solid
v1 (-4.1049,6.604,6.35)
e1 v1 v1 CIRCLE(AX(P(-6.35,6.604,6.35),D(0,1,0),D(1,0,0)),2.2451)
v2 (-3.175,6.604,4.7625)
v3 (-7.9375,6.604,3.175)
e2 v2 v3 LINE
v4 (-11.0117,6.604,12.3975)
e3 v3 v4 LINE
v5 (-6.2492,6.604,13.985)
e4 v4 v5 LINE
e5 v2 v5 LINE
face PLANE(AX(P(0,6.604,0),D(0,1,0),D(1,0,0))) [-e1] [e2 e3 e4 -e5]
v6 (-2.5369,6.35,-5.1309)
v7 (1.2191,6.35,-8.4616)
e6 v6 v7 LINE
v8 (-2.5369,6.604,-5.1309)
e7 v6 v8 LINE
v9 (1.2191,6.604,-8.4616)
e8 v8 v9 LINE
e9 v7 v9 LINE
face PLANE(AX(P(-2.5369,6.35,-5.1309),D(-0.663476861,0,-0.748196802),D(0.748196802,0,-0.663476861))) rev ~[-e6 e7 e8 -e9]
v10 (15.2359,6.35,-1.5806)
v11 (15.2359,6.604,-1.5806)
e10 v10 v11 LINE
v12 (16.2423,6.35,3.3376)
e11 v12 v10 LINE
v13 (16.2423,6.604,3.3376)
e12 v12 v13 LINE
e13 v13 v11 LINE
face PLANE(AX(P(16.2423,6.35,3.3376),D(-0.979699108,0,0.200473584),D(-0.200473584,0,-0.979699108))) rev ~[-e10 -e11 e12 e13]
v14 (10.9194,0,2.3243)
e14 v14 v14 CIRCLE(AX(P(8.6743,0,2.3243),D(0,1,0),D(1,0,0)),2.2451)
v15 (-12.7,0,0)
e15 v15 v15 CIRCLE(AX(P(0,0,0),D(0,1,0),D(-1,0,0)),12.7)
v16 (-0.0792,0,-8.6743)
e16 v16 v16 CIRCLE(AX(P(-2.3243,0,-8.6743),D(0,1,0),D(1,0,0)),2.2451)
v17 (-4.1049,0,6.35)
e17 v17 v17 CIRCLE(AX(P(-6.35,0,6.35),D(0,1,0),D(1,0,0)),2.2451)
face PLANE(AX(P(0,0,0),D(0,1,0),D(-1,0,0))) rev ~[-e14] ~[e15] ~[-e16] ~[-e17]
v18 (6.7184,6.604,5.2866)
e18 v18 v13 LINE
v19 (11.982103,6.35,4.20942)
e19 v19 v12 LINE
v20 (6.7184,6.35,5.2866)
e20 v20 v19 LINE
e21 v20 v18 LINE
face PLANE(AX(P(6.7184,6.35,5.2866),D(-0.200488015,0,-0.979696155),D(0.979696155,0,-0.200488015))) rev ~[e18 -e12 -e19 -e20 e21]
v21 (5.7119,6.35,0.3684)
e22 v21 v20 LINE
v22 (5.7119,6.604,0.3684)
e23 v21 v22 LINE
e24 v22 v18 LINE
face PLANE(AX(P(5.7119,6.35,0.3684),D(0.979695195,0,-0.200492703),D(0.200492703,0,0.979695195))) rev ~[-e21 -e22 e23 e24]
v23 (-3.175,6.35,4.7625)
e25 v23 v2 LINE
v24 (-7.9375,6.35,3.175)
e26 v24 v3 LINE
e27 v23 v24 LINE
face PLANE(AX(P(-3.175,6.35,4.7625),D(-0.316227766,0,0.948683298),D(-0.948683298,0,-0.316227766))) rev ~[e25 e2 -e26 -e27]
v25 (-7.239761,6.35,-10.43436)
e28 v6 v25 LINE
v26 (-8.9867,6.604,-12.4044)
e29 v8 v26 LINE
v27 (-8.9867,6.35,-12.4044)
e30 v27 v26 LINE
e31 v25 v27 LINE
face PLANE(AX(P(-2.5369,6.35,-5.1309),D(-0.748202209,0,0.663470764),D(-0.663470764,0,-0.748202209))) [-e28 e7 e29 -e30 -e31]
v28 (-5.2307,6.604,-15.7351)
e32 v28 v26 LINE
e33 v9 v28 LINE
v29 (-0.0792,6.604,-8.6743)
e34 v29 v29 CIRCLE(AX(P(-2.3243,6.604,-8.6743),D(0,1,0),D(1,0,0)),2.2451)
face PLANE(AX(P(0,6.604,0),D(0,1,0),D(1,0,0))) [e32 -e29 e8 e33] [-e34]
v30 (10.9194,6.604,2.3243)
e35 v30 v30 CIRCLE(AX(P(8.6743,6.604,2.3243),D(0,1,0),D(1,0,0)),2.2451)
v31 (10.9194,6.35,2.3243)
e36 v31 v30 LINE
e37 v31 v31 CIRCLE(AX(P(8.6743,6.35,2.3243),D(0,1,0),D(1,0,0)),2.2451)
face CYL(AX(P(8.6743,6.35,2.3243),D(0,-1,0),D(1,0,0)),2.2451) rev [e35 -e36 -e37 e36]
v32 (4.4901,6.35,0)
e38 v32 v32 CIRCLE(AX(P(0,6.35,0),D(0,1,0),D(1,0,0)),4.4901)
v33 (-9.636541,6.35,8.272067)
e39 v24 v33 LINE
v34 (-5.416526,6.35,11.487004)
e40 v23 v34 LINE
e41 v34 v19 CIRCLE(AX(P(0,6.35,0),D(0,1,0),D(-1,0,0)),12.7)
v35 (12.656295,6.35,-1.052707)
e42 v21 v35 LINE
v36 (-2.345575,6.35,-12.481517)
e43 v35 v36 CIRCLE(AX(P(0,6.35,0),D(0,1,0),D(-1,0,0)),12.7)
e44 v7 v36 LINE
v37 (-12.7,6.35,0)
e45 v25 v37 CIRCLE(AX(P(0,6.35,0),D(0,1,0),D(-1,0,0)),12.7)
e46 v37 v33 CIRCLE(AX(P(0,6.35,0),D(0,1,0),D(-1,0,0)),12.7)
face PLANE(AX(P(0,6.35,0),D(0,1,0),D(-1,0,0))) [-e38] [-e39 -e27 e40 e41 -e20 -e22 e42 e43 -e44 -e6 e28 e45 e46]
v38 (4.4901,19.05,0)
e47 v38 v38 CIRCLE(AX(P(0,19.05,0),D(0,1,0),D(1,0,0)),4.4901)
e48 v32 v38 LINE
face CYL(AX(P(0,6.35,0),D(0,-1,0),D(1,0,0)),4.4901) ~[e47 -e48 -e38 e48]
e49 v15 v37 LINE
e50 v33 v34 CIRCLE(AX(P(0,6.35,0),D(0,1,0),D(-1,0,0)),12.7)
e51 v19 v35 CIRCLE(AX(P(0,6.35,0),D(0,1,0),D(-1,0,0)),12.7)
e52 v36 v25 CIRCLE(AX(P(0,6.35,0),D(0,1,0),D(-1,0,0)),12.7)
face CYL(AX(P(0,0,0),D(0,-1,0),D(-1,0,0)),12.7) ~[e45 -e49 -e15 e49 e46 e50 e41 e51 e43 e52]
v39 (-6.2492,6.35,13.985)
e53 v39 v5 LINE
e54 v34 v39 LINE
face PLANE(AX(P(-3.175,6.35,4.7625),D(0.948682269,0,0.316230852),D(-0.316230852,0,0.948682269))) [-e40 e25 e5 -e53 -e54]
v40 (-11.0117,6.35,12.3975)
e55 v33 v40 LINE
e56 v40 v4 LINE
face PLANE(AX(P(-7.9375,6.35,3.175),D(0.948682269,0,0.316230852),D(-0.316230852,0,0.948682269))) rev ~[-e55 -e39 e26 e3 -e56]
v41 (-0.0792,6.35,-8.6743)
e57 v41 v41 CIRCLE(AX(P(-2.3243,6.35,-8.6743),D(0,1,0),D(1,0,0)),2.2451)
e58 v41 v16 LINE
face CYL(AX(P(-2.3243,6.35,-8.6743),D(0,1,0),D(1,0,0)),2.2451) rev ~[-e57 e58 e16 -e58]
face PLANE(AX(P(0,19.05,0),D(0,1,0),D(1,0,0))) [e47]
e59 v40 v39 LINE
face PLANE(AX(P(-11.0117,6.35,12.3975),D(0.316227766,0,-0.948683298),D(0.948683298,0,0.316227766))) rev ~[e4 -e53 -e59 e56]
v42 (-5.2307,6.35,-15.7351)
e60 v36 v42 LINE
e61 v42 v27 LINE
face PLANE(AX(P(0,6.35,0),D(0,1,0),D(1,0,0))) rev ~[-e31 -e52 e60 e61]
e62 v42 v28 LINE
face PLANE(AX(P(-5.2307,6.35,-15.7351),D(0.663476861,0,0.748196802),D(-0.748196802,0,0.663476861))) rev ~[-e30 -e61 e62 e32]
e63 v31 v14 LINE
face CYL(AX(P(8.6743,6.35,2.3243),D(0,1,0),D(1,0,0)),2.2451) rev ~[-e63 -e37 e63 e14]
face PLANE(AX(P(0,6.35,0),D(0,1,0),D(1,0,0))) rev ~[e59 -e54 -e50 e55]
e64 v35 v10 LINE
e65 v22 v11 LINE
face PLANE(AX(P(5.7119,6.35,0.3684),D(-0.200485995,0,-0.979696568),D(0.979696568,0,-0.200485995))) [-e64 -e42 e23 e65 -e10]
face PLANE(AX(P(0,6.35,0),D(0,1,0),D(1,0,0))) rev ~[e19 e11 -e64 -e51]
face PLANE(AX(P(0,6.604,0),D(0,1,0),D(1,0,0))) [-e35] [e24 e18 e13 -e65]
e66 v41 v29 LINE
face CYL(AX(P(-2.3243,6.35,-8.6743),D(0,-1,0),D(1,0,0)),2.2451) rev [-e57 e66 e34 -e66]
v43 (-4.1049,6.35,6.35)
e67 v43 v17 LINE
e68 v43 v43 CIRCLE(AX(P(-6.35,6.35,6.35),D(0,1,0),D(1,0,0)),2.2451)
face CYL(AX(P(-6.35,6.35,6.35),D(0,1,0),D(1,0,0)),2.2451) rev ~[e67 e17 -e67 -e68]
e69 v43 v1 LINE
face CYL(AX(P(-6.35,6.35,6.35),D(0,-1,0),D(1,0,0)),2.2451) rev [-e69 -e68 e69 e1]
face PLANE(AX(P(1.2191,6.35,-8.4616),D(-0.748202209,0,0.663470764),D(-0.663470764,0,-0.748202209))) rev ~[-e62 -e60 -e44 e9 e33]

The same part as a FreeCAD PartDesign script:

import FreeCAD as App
import Part
import Sketcher
Q = App.Units.Quantity

doc = App.newDocument("Part")
body = doc.addObject("PartDesign::Body", "Body")

# Sketch on XZ plane
sketch1 = body.newObject("Sketcher::SketchObject", "Sketch")
sketch1.AttachmentSupport = (doc.getObject("XZ_Plane"), [""])
sketch1.MapMode = "FlatFace"
sketch1.addGeometry(Part.Circle(App.Vector(0, 0, 0), App.Vector(0, 0, 1), 13), False)
sketch1.addConstraint(Sketcher.Constraint("Coincident", 0, 3, -1, 1))
sketch1.addConstraint(Sketcher.Constraint("Diameter", 0, Q("1 in")))
pad1 = body.newObject("PartDesign::Pad", "Pad")
pad1.Profile = sketch1
pad1.Length = Q("0.25 in")
pad1.Reversed = True

# Sketch on XZ plane
sketch2 = body.newObject("Sketcher::SketchObject", "Sketch001")
sketch2.AttachmentSupport = (doc.getObject("XZ_Plane"), [""])
sketch2.MapMode = "FlatFace"
sketch2.AttachmentOffset = App.Placement(App.Vector(0, 0, -0.25 * 25.4), App.Rotation())
sketch2.addGeometry(Part.LineSegment(App.Vector(-6.2, 14, 0), App.Vector(-3.2, 4.8, 0)), False)
sketch2.addGeometry(Part.LineSegment(App.Vector(-3.2, 4.8, 0), App.Vector(-7.9, 3.2, 0)), False)
sketch2.addGeometry(Part.LineSegment(App.Vector(-7.9, 3.2, 0), App.Vector(-11, 12.4, 0)), False)
sketch2.addGeometry(Part.LineSegment(App.Vector(-11, 12.4, 0), App.Vector(-6.2, 14, 0)), False)
sketch2.addGeometry(Part.Circle(App.Vector(-6.3, 6.3, 0), App.Vector(0, 0, 1), 2.2), False)
sketch2.addGeometry(Part.LineSegment(App.Vector(5.7, 0.4, 0), App.Vector(6.7, 5.3, 0)), False)
sketch2.addGeometry(Part.LineSegment(App.Vector(6.7, 5.3, 0), App.Vector(16.2, 3.3, 0)), False)
sketch2.addGeometry(Part.LineSegment(App.Vector(16.2, 3.3, 0), App.Vector(15.2, -1.6, 0)), False)
sketch2.addGeometry(Part.LineSegment(App.Vector(15.2, -1.6, 0), App.Vector(5.7, 0.4, 0)), False)
sketch2.addGeometry(Part.Circle(App.Vector(8.7, 2.3, 0), App.Vector(0, 0, 1), 2.2), False)
sketch2.addGeometry(Part.LineSegment(App.Vector(-2.5, -5.1, 0), App.Vector(1.2, -8.5, 0)), False)
sketch2.addGeometry(Part.LineSegment(App.Vector(1.2, -8.5, 0), App.Vector(-5.2, -15.7, 0)), False)
sketch2.addGeometry(Part.LineSegment(App.Vector(-5.2, -15.7, 0), App.Vector(-9, -12.4, 0)), False)
sketch2.addGeometry(Part.LineSegment(App.Vector(-9, -12.4, 0), App.Vector(-2.5, -5.1, 0)), False)
sketch2.addGeometry(Part.Circle(App.Vector(-2.3, -8.7, 0), App.Vector(0, 0, 1), 2.2), False)
sketch2.addConstraint(Sketcher.Constraint("Coincident", 0, 2, 1, 1))
sketch2.addConstraint(Sketcher.Constraint("Coincident", 1, 2, 2, 1))
sketch2.addConstraint(Sketcher.Constraint("Coincident", 2, 2, 3, 1))
sketch2.addConstraint(Sketcher.Constraint("Coincident", 3, 2, 0, 1))
sketch2.addConstraint(Sketcher.Constraint("Coincident", 5, 2, 6, 1))
sketch2.addConstraint(Sketcher.Constraint("Coincident", 6, 2, 7, 1))
sketch2.addConstraint(Sketcher.Constraint("Coincident", 7, 2, 8, 1))
sketch2.addConstraint(Sketcher.Constraint("Coincident", 8, 2, 5, 1))
sketch2.addConstraint(Sketcher.Constraint("Coincident", 10, 2, 11, 1))
sketch2.addConstraint(Sketcher.Constraint("Coincident", 11, 2, 12, 1))
sketch2.addConstraint(Sketcher.Constraint("Coincident", 12, 2, 13, 1))
sketch2.addConstraint(Sketcher.Constraint("Coincident", 13, 2, 10, 1))
sketch2.addConstraint(Sketcher.Constraint("Equal", 4, 9))
sketch2.addConstraint(Sketcher.Constraint("Equal", 9, 14))
sketch2.addConstraint(Sketcher.Constraint("Perpendicular", 0, 1))
sketch2.addConstraint(Sketcher.Constraint("Perpendicular", 1, 2))
sketch2.addConstraint(Sketcher.Constraint("Perpendicular", 2, 3))
sketch2.addConstraint(Sketcher.Constraint("Perpendicular", 5, 6))
sketch2.addConstraint(Sketcher.Constraint("Perpendicular", 6, 7))
sketch2.addConstraint(Sketcher.Constraint("Perpendicular", 7, 8))
sketch2.addConstraint(Sketcher.Constraint("Perpendicular", 10, 11))
sketch2.addConstraint(Sketcher.Constraint("Perpendicular", 11, 12))
sketch2.addConstraint(Sketcher.Constraint("Perpendicular", 12, 13))
sketch2.addConstraint(Sketcher.Constraint("Equal", 3, 5))
sketch2.addConstraint(Sketcher.Constraint("Equal", 2, 6))
sketch2.addConstraint(Sketcher.Constraint("Equal", 7, 10))
sketch2.addConstraint(Sketcher.Constraint("Equal", 8, 11))
sketch2.addConstraint(Sketcher.Constraint("Diameter", 4, 4.4902))
sketch2.addConstraint(Sketcher.Constraint("DistanceX", 4, 3, -1, 1, Q("0.25 in")))
sketch2.addConstraint(Sketcher.Constraint("DistanceY", -1, 1, 4, 3, Q("0.25 in")))
sketch2.addConstraint(Sketcher.Constraint("DistanceX", 0, 2, -1, 1, Q("0.125 in")))
sketch2.addConstraint(Sketcher.Constraint("DistanceY", -1, 1, 0, 2, Q("0.1875 in")))
sketch2.addConstraint(Sketcher.Constraint("DistanceX", 1, 2, -1, 1, Q("0.3125 in")))
sketch2.addConstraint(Sketcher.Constraint("DistanceY", -1, 1, 1, 2, Q("0.125 in")))
sketch2.addConstraint(Sketcher.Constraint("DistanceX", -1, 1, 10, 2, Q("0.048 in")))
sketch2.addConstraint(Sketcher.Constraint("DistanceY", 13, 2, -1, 1, Q("0.202 in")))
sketch2.addConstraint(Sketcher.Constraint("DistanceY", 9, 3, 0, 2, Q("0.096 in")))
sketch2.addConstraint(Sketcher.Constraint("DistanceY", 14, 3, 0, 2, Q("0.529 in")))
sketch2.addConstraint(Sketcher.Constraint("DistanceX", 1, 2, 14, 3, Q("0.221 in")))
sketch2.addConstraint(Sketcher.Constraint("DistanceX", 1, 2, 9, 3, Q("0.654 in")))
sketch2.addConstraint(Sketcher.Constraint("DistanceX", 5, 2, 9, 3, Q("0.077 in")))
sketch2.addConstraint(Sketcher.Constraint("DistanceY", 8, 2, 9, 3, Q("0.077 in")))
sketch2.addConstraint(Sketcher.Constraint("DistanceY", 11, 2, 8, 2, Q("0.634 in")))
sketch2.addConstraint(Sketcher.Constraint("DistanceY", -1, 1, 2, 2, Q("0.4881 in")))
sketch2.addConstraint(Sketcher.Constraint("DistanceY", -1, 1, 6, 2, Q("0.1314 in")))
pad2 = body.newObject("PartDesign::Pad", "Pad001")
pad2.Profile = sketch2
pad2.Length = Q("0.01 in")
pad2.Reversed = True

# Sketch on XZ plane
sketch3 = body.newObject("Sketcher::SketchObject", "Sketch002")
sketch3.AttachmentSupport = (doc.getObject("XZ_Plane"), [""])
sketch3.MapMode = "FlatFace"
sketch3.AttachmentOffset = App.Placement(App.Vector(0, 0, -0.25 * 25.4), App.Rotation())
sketch3.addGeometry(Part.Circle(App.Vector(-6.3, 6.3, 0), App.Vector(0, 0, 1), 2.2), False)
sketch3.addGeometry(Part.Circle(App.Vector(8.7, 2.3, 0), App.Vector(0, 0, 1), 2.2), False)
sketch3.addGeometry(Part.Circle(App.Vector(-2.3, -8.7, 0), App.Vector(0, 0, 1), 2.2), False)
sketch3.addConstraint(Sketcher.Constraint("Equal", 0, 1))
sketch3.addConstraint(Sketcher.Constraint("Equal", 1, 2))
sketch3.addConstraint(Sketcher.Constraint("Diameter", 0, 4.4902))
sketch3.addConstraint(Sketcher.Constraint("DistanceX", 0, 3, -1, 1, Q("0.25 in")))
sketch3.addConstraint(Sketcher.Constraint("DistanceY", -1, 1, 0, 3, Q("0.25 in")))
sketch3.addConstraint(Sketcher.Constraint("DistanceX", -1, 1, 1, 3, Q("0.3415 in")))
sketch3.addConstraint(Sketcher.Constraint("DistanceY", -1, 1, 1, 3, Q("0.0915 in")))
sketch3.addConstraint(Sketcher.Constraint("DistanceX", 2, 3, -1, 1, Q("0.0915 in")))
sketch3.addConstraint(Sketcher.Constraint("DistanceY", 2, 3, -1, 1, Q("0.3415 in")))
pocket1 = body.newObject("PartDesign::Pocket", "Pocket")
pocket1.Profile = sketch3
pocket1.Length = Q("0.5 in")
pocket1.Reversed = True

# Sketch on XZ plane
sketch4 = body.newObject("Sketcher::SketchObject", "Sketch003")
sketch4.AttachmentSupport = (doc.getObject("XZ_Plane"), [""])
sketch4.MapMode = "FlatFace"
sketch4.AttachmentOffset = App.Placement(App.Vector(0, 0, -0.25 * 25.4), App.Rotation())
sketch4.addGeometry(Part.Circle(App.Vector(0, 0, 0), App.Vector(0, 0, 1), 4.5), False)
sketch4.addConstraint(Sketcher.Constraint("Coincident", 0, 3, -1, 1))
sketch4.addConstraint(Sketcher.Constraint("Diameter", 0, 8.9802))
pad3 = body.newObject("PartDesign::Pad", "Pad002")
pad3.Profile = sketch4
pad3.Length = Q("0.5 in")
pad3.Reversed = True

doc.recompute()
